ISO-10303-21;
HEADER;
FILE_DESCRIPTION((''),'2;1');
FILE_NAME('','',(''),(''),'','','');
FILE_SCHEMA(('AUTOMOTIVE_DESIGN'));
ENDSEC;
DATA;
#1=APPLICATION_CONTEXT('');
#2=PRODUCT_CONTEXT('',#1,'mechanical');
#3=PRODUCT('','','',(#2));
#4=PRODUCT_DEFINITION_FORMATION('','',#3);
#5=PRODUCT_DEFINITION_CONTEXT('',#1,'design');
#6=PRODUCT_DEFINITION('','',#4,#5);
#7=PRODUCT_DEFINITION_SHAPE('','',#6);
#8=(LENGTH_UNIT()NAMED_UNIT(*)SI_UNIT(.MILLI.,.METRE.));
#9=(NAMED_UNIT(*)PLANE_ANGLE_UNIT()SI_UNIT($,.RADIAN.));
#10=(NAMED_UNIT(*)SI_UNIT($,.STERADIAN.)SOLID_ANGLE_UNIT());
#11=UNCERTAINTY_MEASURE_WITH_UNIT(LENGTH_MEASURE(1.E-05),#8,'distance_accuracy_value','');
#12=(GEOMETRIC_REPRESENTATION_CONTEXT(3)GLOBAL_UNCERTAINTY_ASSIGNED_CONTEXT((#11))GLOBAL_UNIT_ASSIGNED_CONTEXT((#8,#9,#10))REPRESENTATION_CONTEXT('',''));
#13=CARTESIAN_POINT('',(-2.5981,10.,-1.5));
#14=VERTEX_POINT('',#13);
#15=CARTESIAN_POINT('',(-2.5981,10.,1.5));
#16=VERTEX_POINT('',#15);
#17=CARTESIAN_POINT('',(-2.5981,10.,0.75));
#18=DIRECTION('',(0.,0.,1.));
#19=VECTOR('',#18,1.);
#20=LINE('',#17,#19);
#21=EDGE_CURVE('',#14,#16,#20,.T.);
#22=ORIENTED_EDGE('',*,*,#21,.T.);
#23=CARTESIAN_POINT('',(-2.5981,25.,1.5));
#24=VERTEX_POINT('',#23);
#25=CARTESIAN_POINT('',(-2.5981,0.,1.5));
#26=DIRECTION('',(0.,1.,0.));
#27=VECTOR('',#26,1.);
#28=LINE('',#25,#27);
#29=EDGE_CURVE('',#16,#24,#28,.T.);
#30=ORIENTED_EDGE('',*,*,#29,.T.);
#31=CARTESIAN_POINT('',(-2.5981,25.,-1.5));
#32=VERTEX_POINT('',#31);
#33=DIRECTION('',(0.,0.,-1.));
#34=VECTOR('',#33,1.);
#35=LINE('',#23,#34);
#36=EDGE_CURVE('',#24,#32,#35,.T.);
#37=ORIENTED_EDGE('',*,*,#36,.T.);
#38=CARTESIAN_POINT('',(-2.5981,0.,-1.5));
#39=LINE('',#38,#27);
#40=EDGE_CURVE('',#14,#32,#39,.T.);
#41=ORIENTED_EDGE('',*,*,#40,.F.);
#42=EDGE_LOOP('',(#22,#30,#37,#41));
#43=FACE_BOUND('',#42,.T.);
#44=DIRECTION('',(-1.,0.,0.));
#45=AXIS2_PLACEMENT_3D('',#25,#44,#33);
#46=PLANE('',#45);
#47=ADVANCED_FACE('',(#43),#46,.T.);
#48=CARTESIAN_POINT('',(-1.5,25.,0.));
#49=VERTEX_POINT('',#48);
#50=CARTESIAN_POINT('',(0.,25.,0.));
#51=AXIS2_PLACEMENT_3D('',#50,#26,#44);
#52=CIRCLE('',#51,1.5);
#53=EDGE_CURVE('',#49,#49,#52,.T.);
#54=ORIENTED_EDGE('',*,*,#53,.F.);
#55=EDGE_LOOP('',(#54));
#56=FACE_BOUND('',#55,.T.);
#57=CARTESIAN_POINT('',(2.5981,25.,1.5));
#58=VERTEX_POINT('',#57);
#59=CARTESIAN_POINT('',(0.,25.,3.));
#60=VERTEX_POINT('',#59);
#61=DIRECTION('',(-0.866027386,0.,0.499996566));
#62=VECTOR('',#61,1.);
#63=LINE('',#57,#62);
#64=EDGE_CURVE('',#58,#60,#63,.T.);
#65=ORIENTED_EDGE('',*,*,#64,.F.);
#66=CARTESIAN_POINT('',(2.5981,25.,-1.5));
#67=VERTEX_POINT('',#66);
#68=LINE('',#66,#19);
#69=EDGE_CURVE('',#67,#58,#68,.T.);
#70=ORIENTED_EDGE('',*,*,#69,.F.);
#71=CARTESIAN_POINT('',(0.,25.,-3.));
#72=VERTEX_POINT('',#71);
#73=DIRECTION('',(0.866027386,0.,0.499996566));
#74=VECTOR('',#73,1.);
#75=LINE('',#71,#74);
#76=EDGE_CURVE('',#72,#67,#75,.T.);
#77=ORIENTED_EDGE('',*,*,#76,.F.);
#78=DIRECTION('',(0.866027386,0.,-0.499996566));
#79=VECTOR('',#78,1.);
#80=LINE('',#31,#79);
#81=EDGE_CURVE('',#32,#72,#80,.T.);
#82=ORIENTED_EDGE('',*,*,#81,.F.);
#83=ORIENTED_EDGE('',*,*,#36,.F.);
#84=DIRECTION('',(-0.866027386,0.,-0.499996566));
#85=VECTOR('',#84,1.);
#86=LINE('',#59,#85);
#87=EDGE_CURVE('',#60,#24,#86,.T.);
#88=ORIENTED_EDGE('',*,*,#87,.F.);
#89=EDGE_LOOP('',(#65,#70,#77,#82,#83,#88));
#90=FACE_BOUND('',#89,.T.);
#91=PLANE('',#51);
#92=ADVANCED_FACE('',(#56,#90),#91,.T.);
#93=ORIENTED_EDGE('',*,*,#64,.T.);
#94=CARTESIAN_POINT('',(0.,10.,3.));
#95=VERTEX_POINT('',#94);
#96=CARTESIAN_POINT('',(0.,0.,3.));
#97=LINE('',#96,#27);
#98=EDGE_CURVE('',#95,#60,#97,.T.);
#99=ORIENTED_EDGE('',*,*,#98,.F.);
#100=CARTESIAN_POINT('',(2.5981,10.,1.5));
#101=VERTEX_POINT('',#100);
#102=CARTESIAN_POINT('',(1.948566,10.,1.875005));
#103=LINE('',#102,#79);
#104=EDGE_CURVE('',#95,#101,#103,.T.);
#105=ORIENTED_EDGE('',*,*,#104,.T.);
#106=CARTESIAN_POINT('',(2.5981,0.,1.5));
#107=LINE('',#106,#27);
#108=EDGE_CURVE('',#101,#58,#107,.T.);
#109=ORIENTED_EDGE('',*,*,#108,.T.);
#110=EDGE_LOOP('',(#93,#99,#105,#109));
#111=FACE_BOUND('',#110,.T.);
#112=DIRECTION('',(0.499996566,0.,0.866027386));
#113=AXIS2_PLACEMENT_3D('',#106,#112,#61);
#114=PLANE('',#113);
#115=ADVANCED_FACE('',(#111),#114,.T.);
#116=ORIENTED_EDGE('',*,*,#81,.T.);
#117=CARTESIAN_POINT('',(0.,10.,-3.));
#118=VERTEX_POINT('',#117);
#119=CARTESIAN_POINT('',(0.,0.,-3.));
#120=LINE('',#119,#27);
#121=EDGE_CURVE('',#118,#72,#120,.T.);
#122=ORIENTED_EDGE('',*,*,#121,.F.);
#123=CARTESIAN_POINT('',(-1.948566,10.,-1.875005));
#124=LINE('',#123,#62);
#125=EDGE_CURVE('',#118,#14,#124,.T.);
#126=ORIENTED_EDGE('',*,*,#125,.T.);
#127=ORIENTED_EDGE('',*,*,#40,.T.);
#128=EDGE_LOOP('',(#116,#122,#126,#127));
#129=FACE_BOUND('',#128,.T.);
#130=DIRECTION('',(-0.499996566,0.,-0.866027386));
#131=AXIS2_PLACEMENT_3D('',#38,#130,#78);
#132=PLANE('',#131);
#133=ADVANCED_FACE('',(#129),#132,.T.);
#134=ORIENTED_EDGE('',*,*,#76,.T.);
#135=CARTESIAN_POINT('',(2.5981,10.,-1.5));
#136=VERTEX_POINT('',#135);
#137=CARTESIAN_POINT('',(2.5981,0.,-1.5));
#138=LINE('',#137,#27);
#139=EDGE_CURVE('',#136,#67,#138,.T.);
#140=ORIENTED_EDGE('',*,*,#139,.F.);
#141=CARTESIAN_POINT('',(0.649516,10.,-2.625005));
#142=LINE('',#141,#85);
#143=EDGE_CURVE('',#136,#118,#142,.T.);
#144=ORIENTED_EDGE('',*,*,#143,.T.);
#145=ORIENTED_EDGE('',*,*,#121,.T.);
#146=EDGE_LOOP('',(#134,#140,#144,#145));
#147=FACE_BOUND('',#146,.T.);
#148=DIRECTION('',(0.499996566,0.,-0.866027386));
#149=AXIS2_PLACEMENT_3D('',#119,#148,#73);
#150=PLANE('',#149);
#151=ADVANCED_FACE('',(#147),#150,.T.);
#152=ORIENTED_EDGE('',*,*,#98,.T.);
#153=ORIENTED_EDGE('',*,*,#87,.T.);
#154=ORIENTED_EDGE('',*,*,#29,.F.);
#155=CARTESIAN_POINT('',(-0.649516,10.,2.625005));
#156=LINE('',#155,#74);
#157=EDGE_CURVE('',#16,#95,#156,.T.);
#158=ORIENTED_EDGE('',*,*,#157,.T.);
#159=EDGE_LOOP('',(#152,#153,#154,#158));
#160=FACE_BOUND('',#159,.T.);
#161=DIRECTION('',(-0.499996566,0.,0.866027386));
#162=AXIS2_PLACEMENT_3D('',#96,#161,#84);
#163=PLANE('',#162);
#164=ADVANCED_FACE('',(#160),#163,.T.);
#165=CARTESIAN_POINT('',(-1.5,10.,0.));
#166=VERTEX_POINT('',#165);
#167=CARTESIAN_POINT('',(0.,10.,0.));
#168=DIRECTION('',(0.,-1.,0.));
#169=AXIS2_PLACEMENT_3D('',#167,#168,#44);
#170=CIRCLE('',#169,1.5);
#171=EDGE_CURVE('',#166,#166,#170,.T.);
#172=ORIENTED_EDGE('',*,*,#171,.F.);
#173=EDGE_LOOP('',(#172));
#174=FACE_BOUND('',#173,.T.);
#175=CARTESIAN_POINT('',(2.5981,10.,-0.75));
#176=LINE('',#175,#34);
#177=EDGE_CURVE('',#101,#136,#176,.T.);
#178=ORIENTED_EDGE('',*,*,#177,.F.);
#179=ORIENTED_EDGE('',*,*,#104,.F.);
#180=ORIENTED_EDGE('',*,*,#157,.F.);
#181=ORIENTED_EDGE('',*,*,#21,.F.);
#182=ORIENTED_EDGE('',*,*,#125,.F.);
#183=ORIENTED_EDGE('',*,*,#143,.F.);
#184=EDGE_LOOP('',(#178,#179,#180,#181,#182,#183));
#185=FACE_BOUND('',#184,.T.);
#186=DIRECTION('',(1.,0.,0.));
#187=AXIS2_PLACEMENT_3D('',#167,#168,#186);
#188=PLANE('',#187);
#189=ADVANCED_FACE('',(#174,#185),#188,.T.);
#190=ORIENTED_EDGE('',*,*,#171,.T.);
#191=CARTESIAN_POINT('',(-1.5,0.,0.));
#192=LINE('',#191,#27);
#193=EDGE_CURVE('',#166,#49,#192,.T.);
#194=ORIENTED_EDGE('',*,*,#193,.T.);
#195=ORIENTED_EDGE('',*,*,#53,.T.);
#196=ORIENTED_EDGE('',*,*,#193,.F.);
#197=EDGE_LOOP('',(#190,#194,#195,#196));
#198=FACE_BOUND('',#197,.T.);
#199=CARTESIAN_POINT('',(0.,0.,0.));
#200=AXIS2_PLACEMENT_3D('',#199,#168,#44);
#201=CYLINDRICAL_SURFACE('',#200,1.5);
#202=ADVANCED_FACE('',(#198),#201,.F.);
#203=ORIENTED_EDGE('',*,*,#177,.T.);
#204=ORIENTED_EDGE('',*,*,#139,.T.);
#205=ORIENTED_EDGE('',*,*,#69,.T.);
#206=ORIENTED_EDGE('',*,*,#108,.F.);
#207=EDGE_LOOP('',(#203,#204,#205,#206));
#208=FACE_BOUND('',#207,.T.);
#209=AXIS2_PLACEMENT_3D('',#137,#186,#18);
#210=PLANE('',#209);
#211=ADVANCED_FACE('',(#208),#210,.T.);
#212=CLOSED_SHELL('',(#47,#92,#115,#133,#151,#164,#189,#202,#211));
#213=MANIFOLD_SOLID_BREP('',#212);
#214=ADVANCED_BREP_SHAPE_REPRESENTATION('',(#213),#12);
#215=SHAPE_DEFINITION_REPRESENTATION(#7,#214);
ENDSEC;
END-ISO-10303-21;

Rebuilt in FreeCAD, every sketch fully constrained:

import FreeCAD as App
import Part
import Sketcher
Q = App.Units.Quantity


def add_polygon(sketch, points):
    """Adds a closed chain of lines whose ends are joined by coincident constraints."""
    first, n = sketch.GeometryCount, len(points)
    for a, b in zip(points, points[1:] + points[:1]):
        sketch.addGeometry(Part.LineSegment(App.Vector(*a, 0), App.Vector(*b, 0)), False)
    for i in range(n):
        sketch.addConstraint(Sketcher.Constraint("Coincident", first + i, 2, first + (i + 1) % n, 1))

doc = App.newDocument("Part")
body = doc.addObject("PartDesign::Body", "Body")

# Sketch on XZ plane
sketch1 = body.newObject("Sketcher::SketchObject", "Sketch")
sketch1.AttachmentSupport = (doc.getObject("XZ_Plane"), [""])
sketch1.MapMode = "FlatFace"
add_polygon(sketch1, [(2.5981, -1.5), (0, -3), (-2.5981, -1.5), (-2.5981, 1.5), (0, 3), (2.5981, 1.5)])  # lines 0-5
sketch1.addGeometry(Part.Circle(App.Vector(0, 0, 0), App.Vector(0, 0, 1), 1.5), False)  # 6
sketch1.addConstraint(Sketcher.Constraint("Vertical", 2))
sketch1.addConstraint(Sketcher.Constraint("Vertical", 5))
sketch1.addConstraint(Sketcher.Constraint("Coincident", 6, 3, -1, 1))
sketch1.addConstraint(Sketcher.Constraint("Symmetric", 0, 2, 3, 2, -1, 1))
sketch1.addConstraint(Sketcher.Constraint("Symmetric", 1, 2, 4, 2, -1, 1))
sketch1.addConstraint(Sketcher.Constraint("PointOnObject", 0, 2, -2))
sketch1.addConstraint(Sketcher.Constraint("Parallel", 0, 3))
sketch1.addConstraint(Sketcher.Constraint("Horizontal", 2, 2, 4, 2))
sketch1.addConstraint(Sketcher.Constraint("Diameter", 6, Q("3 mm")))
sketch1.addConstraint(Sketcher.Constraint("DistanceY", 2, 1, 2, 2, Q("3 mm")))
sketch1.addConstraint(Sketcher.Constraint("Distance", 0, Q("3 mm")))
sketch1.addConstraint(Sketcher.Constraint("DistanceY", 0, 2, -1, 1, Q("3 mm")))
pad1 = body.newObject("PartDesign::Pad", "Pad")
pad1.Profile = sketch1
pad1.Length = 25
pad1.Reversed = True

# Sketch on XZ plane
sketch2 = body.newObject("Sketcher::SketchObject", "Sketch001")
sketch2.AttachmentSupport = (doc.getObject("XZ_Plane"), [""])
sketch2.MapMode = "FlatFace"
add_polygon(sketch2, [(-5.778, 4.3605), (-5.778, -4.3605), (5.778, -4.3605), (5.778, 4.3605)])  # lines 0-3
sketch2.addConstraint(Sketcher.Constraint("Vertical", 0))
sketch2.addConstraint(Sketcher.Constraint("Horizontal", 1))
sketch2.addConstraint(Sketcher.Constraint("Vertical", 2))
sketch2.addConstraint(Sketcher.Constraint("Horizontal", 3))
sketch2.addConstraint(Sketcher.Constraint("Symmetric", 0, 2, 2, 2, -1, 1))
sketch2.addConstraint(Sketcher.Constraint("DistanceX", 1, 1, 1, 2, Q("11.556 mm")))
sketch2.addConstraint(Sketcher.Constraint("DistanceY", 0, 2, 0, 1, Q("8.721 mm")))
pocket1 = body.newObject("PartDesign::Pocket", "Pocket")
pocket1.Profile = sketch2
pocket1.Length = 10

doc.recompute()
